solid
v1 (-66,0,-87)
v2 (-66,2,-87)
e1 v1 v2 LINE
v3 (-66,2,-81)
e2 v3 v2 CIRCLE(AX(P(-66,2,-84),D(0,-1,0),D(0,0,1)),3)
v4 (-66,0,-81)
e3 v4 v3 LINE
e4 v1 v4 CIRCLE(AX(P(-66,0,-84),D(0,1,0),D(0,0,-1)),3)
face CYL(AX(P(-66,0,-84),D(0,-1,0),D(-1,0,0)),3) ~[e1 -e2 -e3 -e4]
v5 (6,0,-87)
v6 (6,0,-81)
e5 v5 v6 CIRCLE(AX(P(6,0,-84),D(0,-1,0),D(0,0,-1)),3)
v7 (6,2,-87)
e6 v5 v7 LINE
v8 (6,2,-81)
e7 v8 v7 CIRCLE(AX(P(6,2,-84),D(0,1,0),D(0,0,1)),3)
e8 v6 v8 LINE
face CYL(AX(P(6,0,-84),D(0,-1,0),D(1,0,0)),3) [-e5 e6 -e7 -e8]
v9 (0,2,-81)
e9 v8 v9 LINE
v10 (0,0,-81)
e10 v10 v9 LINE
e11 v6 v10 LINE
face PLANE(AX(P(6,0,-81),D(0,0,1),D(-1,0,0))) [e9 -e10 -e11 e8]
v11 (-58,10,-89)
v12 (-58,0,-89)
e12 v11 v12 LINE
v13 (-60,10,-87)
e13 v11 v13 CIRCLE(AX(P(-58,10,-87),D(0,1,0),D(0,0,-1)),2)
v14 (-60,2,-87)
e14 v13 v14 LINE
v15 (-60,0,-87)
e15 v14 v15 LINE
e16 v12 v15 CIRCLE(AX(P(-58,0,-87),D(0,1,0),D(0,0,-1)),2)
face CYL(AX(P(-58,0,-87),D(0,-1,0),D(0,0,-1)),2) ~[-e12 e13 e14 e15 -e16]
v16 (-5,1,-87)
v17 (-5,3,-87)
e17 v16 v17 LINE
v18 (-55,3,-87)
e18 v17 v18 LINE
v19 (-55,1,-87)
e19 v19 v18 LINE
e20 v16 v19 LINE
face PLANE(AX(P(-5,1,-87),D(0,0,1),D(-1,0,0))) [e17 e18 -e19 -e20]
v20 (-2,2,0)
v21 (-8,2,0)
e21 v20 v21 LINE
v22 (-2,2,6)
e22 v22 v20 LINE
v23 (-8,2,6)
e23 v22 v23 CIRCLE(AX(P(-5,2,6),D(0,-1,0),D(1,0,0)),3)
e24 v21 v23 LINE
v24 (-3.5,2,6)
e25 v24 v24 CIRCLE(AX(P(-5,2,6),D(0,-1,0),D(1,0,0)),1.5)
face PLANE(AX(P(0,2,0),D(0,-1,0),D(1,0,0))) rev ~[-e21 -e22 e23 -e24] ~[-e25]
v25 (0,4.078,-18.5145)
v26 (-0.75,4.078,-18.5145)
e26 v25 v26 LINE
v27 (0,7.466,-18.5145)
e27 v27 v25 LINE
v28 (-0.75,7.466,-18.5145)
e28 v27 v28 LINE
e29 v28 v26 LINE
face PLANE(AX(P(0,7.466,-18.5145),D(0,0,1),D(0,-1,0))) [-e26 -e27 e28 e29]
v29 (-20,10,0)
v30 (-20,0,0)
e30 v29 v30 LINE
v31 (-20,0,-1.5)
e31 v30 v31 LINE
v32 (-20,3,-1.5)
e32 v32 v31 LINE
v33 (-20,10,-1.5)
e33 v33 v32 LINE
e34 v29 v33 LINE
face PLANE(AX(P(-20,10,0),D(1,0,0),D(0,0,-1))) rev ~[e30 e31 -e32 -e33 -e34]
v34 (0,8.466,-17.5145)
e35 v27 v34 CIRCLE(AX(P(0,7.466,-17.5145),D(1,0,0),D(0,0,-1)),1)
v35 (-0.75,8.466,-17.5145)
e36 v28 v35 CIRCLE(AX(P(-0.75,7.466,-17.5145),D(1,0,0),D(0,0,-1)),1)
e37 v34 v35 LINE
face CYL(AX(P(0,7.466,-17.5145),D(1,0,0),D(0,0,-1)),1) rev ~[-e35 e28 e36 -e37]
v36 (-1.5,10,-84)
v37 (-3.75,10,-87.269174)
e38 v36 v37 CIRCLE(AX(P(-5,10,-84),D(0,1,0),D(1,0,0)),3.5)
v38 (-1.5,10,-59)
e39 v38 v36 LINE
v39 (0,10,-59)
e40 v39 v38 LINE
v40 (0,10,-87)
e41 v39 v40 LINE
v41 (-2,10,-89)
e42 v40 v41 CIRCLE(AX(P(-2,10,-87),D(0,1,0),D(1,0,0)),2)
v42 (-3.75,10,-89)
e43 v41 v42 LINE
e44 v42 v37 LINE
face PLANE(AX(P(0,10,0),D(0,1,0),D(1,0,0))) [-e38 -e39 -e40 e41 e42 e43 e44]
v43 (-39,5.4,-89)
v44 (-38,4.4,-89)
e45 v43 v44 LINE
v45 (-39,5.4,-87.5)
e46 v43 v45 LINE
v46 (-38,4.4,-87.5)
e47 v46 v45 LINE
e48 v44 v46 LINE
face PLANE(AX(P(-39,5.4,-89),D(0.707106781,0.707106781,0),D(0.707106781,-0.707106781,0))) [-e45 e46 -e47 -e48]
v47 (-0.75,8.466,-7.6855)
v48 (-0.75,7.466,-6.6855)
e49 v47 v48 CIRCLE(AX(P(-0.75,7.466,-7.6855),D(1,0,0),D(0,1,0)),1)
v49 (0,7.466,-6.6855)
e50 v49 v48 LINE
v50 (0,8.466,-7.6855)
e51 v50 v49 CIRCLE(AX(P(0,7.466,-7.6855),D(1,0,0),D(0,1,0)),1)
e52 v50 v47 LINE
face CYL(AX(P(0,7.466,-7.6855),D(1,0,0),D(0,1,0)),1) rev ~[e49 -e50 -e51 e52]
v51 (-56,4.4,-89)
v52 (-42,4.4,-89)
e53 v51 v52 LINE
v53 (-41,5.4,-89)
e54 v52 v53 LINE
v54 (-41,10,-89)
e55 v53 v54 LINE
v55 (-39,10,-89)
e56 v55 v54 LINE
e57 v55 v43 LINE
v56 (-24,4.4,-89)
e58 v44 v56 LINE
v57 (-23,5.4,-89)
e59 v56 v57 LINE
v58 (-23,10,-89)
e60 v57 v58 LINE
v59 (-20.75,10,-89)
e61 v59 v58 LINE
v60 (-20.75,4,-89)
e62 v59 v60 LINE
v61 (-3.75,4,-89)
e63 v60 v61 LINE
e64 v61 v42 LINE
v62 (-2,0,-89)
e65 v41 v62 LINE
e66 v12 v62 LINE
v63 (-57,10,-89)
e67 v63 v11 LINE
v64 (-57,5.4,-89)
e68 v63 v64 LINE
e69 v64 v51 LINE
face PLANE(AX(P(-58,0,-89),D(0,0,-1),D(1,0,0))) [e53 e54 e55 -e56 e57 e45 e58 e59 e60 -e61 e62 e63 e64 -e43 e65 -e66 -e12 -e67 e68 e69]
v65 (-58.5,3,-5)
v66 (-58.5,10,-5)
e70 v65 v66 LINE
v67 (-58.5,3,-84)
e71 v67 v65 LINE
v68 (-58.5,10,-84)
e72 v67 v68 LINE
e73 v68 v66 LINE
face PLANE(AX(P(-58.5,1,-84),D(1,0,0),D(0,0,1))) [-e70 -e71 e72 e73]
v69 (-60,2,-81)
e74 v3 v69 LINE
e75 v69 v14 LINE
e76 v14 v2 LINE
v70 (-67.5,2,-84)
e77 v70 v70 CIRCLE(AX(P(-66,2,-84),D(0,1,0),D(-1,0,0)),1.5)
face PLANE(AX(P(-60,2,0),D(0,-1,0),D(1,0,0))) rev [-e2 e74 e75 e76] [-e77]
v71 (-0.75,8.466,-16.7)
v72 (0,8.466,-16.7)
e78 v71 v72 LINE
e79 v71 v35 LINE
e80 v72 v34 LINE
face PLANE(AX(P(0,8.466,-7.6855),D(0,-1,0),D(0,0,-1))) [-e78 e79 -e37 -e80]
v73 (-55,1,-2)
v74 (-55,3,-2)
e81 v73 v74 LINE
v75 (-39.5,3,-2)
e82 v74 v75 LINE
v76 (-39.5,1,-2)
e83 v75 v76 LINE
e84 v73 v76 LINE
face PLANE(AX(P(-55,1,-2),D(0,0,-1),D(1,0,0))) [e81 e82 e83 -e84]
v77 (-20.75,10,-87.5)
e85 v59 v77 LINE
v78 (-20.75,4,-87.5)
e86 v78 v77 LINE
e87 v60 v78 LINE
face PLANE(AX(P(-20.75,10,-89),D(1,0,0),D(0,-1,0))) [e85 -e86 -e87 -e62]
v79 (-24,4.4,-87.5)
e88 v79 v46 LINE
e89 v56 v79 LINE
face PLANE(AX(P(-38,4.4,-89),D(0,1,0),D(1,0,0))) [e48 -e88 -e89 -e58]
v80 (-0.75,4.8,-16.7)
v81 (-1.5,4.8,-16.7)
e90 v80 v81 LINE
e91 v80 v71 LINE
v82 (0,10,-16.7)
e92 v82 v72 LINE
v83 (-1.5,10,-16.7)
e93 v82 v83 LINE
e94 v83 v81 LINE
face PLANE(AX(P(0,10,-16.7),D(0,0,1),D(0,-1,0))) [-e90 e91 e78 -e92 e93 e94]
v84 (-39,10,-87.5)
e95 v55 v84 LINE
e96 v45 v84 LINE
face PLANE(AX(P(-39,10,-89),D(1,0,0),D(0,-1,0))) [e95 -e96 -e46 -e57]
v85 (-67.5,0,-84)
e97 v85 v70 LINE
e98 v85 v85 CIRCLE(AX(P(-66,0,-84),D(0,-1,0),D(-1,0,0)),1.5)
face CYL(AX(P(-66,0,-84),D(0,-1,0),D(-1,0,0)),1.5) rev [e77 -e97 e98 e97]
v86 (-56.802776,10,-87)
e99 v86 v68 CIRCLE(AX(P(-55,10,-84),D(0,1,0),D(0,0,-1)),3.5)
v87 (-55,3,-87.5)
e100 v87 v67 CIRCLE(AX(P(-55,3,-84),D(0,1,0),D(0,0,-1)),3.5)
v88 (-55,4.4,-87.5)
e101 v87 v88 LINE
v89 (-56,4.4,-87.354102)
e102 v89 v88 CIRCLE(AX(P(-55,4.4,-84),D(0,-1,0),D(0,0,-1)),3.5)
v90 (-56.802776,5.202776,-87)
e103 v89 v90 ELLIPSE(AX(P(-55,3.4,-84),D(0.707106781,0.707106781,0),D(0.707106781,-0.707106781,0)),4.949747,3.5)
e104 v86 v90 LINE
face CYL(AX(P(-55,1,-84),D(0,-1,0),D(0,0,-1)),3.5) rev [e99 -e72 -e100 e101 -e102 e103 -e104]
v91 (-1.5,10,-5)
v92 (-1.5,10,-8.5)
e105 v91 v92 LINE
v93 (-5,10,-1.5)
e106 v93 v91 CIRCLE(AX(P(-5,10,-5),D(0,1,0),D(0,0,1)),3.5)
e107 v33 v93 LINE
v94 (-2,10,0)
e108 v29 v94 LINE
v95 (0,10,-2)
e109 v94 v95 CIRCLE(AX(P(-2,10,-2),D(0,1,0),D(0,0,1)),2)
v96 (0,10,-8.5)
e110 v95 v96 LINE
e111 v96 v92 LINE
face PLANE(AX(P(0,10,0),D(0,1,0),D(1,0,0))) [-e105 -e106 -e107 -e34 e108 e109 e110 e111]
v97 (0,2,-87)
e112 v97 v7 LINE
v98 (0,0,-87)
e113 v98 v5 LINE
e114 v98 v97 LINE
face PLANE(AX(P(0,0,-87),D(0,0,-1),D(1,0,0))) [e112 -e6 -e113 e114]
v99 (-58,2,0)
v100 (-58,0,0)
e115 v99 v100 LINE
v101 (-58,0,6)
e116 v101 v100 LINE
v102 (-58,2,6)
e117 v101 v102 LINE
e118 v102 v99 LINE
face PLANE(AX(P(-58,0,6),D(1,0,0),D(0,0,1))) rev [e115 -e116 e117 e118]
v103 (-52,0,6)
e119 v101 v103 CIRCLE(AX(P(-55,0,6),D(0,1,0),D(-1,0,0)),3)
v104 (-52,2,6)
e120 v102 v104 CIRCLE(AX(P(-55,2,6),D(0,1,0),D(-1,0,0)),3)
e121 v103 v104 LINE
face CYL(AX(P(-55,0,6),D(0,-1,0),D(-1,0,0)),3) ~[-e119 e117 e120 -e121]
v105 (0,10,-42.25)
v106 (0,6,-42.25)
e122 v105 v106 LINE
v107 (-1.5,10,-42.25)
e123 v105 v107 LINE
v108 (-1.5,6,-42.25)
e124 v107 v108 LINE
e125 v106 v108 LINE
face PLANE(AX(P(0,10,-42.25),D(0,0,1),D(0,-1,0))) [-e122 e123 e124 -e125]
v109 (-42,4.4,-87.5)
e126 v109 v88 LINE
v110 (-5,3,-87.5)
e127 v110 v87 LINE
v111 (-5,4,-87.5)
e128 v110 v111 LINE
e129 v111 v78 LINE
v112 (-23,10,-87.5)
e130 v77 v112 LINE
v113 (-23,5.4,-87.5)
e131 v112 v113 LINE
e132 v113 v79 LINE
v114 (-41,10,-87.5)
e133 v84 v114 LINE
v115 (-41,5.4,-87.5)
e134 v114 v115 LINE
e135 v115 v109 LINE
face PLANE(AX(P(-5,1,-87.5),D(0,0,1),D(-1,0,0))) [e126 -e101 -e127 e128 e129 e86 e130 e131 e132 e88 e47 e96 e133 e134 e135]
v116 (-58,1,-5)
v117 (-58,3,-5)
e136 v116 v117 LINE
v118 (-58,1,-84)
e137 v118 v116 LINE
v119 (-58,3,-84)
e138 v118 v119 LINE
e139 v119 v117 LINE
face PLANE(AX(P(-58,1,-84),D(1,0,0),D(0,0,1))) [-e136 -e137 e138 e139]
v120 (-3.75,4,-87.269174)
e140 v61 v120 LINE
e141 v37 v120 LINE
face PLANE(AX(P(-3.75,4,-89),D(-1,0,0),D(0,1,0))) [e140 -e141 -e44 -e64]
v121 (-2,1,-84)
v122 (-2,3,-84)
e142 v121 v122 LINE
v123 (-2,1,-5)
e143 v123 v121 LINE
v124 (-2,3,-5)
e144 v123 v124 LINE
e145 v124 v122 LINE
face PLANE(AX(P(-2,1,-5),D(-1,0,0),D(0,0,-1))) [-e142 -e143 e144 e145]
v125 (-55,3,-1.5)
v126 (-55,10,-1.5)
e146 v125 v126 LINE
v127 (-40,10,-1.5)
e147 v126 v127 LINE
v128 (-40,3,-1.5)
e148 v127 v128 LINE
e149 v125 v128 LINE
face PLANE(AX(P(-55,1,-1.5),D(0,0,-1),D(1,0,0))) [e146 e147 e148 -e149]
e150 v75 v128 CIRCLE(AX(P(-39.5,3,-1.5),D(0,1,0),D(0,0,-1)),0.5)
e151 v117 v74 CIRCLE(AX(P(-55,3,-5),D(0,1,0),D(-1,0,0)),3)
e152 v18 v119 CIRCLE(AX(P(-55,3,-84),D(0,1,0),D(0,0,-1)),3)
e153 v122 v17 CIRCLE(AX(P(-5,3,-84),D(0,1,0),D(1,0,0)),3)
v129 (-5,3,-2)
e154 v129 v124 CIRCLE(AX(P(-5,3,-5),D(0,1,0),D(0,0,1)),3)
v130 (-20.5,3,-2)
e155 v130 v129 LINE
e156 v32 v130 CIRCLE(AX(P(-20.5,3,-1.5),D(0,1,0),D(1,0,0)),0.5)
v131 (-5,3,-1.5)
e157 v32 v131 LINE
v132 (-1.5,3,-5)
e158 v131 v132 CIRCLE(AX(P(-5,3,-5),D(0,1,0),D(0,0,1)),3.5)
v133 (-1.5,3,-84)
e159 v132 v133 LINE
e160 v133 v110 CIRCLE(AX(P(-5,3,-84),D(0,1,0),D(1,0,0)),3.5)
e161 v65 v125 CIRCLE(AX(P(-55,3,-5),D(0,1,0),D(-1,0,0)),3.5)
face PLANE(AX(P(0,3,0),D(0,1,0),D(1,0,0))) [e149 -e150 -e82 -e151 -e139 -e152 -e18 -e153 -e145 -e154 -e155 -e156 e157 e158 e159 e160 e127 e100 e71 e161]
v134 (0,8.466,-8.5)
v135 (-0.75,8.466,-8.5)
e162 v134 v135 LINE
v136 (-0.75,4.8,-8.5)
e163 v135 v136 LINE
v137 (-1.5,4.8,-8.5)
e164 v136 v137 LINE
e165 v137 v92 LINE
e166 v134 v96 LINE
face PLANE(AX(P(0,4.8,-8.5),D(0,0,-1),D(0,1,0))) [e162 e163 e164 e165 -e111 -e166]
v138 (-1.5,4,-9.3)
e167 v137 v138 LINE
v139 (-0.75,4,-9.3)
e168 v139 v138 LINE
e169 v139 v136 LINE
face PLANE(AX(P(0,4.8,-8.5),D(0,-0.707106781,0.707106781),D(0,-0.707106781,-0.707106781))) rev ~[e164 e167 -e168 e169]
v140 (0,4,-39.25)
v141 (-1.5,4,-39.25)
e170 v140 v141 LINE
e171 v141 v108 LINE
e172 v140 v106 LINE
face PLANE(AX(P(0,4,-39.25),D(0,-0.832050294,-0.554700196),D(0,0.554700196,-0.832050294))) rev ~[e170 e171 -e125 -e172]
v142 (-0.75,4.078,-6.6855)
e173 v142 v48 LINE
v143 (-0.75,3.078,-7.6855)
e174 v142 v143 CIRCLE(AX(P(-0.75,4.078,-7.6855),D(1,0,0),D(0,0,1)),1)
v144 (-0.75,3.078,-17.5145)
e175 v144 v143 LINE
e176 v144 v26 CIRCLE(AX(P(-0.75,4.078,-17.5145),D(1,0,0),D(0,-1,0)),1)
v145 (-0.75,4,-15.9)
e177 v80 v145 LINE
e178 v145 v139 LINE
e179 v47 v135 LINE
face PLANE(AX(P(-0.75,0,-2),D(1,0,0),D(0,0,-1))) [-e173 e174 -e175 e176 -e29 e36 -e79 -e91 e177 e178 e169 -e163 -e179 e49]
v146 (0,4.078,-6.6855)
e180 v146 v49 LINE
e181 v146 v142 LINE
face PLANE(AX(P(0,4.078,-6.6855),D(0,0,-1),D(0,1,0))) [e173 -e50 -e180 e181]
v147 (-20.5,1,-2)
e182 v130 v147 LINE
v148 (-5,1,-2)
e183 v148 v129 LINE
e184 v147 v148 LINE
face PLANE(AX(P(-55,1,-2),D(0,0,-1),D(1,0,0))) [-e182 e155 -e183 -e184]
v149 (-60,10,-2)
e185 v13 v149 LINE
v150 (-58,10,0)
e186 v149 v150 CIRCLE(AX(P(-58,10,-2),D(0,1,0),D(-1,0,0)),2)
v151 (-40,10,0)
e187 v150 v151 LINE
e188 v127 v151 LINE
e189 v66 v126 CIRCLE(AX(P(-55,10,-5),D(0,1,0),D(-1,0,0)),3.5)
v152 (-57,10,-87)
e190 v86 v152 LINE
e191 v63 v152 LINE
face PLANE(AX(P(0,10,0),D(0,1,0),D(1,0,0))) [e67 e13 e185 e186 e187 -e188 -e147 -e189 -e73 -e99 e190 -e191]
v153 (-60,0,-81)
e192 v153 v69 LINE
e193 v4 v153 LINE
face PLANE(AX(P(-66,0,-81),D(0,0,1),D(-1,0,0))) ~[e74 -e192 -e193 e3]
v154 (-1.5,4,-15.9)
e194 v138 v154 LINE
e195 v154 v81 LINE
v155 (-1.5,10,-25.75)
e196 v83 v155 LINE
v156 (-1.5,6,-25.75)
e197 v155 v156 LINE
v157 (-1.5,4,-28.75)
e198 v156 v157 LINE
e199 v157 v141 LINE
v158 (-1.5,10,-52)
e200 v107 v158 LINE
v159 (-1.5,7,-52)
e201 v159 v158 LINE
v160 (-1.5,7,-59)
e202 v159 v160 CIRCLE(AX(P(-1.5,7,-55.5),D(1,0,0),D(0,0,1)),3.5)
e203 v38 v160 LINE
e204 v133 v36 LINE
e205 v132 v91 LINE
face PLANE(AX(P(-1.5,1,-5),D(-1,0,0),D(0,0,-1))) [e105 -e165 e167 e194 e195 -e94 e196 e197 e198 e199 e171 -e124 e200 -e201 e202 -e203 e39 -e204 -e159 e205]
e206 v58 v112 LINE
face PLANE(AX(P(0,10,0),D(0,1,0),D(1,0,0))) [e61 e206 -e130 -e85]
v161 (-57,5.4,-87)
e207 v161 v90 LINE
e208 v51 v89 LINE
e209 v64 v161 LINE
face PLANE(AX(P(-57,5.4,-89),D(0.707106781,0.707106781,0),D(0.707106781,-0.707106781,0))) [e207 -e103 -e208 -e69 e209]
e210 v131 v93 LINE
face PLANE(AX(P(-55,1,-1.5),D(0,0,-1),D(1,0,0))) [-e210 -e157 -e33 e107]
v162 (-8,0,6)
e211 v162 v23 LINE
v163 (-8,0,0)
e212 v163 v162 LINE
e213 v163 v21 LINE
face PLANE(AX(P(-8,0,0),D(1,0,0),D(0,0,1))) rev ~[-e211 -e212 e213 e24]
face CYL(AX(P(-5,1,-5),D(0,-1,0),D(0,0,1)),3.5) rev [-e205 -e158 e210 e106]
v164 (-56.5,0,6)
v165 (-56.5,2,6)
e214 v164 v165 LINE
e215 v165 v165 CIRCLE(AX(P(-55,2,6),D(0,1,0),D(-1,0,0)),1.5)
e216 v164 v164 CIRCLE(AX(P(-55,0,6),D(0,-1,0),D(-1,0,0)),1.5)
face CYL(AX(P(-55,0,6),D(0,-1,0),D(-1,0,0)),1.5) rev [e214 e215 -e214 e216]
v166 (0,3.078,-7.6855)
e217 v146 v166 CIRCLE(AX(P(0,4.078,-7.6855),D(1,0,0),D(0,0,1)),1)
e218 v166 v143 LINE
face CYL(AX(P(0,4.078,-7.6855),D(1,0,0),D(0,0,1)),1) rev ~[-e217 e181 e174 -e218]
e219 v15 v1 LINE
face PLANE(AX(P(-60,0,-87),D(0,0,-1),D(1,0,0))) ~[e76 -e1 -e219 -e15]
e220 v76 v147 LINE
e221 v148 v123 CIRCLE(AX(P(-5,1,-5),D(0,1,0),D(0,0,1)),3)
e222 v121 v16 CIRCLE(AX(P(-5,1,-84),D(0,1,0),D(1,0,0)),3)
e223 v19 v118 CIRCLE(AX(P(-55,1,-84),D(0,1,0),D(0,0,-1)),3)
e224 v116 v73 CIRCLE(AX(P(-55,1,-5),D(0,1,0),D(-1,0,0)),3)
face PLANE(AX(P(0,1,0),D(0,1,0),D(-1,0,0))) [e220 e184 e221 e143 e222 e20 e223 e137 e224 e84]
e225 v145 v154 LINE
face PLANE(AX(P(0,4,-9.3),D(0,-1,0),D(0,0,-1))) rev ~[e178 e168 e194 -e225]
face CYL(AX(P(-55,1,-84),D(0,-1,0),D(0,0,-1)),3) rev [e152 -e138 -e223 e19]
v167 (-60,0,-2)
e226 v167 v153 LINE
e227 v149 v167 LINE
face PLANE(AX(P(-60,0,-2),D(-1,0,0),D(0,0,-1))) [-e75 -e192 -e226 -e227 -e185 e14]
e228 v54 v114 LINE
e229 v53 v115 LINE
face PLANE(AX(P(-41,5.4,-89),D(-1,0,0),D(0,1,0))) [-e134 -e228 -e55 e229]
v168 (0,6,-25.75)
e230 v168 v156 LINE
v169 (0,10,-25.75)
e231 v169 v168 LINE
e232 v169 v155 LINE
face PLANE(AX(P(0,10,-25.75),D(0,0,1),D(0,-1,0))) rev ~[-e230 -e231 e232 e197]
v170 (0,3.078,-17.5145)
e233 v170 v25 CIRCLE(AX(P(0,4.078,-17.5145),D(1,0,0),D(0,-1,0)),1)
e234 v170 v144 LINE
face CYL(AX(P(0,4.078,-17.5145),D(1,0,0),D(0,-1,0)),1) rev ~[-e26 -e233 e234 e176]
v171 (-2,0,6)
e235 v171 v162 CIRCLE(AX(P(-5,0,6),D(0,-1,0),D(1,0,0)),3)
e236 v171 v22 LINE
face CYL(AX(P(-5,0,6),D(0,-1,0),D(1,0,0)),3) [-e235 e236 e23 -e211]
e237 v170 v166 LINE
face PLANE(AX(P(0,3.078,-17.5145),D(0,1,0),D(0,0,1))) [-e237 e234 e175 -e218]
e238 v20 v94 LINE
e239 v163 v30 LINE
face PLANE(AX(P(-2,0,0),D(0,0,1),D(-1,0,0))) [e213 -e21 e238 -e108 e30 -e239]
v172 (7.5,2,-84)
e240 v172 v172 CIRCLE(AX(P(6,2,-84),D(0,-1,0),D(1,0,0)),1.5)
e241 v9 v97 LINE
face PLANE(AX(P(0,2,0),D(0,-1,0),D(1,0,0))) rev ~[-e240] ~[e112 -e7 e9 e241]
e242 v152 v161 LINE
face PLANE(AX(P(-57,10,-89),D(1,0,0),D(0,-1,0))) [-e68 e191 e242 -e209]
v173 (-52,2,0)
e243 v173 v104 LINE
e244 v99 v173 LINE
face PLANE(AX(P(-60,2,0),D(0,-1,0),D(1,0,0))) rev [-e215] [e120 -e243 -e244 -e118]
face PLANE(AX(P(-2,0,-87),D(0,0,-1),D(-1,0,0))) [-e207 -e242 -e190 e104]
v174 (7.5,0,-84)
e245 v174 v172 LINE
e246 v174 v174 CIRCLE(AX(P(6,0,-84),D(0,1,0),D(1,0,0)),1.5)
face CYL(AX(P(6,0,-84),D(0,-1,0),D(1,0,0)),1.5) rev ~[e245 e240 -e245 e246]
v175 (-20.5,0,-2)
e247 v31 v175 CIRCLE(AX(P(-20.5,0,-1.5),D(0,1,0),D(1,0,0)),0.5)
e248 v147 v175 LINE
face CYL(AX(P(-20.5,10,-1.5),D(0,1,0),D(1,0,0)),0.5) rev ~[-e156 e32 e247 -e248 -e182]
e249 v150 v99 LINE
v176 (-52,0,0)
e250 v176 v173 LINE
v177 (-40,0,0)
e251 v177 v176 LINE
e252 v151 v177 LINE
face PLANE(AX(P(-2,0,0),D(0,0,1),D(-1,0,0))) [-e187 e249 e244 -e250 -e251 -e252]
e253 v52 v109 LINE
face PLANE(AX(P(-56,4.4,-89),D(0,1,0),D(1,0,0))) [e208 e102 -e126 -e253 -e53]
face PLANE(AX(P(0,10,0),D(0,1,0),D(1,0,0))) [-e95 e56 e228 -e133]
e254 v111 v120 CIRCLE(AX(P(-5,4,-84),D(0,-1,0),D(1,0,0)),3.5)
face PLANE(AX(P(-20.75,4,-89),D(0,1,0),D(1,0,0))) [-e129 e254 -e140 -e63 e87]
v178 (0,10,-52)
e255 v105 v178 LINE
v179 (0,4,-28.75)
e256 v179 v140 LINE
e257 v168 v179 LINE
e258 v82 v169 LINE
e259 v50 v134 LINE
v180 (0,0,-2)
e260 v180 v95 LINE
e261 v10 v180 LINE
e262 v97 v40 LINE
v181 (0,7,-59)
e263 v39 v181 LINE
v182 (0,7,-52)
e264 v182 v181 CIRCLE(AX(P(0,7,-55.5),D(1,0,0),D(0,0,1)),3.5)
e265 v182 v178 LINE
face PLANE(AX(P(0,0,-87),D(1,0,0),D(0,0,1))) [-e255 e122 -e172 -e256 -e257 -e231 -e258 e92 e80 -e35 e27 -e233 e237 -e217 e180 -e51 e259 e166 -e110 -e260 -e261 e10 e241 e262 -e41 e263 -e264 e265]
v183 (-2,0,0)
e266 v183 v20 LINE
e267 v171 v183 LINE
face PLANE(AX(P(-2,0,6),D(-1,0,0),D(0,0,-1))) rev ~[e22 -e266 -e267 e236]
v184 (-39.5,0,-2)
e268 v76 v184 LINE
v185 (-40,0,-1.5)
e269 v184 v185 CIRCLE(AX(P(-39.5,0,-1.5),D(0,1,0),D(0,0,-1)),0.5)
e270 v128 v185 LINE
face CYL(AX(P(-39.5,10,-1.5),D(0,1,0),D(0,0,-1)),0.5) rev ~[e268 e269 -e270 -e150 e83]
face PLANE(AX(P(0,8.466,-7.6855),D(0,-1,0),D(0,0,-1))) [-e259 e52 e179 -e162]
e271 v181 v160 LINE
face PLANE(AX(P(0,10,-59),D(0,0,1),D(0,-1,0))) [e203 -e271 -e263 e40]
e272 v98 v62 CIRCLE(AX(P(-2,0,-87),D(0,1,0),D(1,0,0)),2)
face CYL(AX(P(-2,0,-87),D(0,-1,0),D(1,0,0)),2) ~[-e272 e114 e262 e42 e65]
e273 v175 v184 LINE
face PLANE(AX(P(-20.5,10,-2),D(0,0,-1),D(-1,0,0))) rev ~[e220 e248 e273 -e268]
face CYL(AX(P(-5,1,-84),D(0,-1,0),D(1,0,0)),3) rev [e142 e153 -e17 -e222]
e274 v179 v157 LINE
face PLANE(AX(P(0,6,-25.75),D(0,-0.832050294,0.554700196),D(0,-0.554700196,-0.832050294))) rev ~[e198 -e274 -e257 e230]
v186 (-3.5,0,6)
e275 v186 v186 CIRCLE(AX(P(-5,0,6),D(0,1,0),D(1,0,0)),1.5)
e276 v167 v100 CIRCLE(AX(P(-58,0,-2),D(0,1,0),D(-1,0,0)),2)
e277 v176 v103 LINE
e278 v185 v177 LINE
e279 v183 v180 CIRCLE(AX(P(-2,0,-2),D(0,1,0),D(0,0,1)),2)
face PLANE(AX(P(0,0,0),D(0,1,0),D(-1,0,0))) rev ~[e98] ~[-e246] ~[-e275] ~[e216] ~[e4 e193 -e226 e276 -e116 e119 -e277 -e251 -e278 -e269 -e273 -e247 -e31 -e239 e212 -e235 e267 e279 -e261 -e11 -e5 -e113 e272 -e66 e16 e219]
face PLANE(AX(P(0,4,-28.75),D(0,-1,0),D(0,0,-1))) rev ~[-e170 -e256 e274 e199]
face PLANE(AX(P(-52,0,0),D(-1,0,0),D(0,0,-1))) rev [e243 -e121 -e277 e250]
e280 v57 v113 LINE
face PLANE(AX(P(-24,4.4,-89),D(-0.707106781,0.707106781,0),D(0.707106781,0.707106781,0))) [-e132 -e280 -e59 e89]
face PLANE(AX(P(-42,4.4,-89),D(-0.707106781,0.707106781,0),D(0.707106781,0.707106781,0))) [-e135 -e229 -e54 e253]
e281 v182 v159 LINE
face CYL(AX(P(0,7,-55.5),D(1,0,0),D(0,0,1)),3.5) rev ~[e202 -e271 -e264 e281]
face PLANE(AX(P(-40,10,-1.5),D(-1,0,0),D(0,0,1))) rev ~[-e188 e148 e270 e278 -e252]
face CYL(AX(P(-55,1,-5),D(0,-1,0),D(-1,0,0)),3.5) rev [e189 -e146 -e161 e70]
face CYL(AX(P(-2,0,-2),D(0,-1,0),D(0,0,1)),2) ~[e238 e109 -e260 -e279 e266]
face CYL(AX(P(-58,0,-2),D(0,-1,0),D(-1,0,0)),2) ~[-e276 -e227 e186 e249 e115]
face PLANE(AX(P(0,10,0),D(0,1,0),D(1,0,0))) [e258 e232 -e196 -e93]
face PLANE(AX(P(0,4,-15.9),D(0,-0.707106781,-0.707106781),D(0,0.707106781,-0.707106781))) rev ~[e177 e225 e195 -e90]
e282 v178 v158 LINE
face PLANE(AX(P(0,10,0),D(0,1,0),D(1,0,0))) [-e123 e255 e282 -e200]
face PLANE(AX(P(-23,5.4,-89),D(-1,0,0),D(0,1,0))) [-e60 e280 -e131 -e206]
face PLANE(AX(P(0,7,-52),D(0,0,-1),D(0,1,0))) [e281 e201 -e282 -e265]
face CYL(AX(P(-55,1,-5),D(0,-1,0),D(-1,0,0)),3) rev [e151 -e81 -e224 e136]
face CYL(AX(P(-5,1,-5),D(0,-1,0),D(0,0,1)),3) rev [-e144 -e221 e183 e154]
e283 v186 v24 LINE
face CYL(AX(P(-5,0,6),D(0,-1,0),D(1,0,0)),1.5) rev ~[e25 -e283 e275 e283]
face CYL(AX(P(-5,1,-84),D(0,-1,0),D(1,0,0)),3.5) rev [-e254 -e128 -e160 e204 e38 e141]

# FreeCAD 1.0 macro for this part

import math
import FreeCAD as App
import Part
import Sketcher

V = App.Vector


def add_polygon(sketch, points):
    """Adds a closed chain of lines whose ends are joined by coincident constraints."""
    first, n = sketch.GeometryCount, len(points)
    for a, b in zip(points, points[1:] + points[:1]):
        sketch.addGeometry(Part.LineSegment(App.Vector(*a, 0), App.Vector(*b, 0)), False)
    for i in range(n):
        sketch.addConstraint(Sketcher.Constraint("Coincident", first + i, 2, first + (i + 1) % n, 1))

doc = App.newDocument("Part")
body = doc.addObject("PartDesign::Body", "Body")

sketch1 = body.newObject("Sketcher::SketchObject", "Sketch")
sketch1.AttachmentSupport = (doc.getObject("XZ_Plane"), [""])
sketch1.MapMode = "FlatFace"
sketch1.addGeometry([
    Part.LineSegment(V(-58, 0, 0), V(-2, 0, 0)),
    Part.ArcOfCircle(Part.Circle(V(-2, -2, 0), V(0, 0, 1), 2), math.radians(0), math.radians(90)),
    Part.LineSegment(V(0, -2, 0), V(0, -87, 0)),
    Part.ArcOfCircle(Part.Circle(V(-2, -87, 0), V(0, 0, 1), 2), math.radians(-90), math.radians(0)),
    Part.LineSegment(V(-2, -89, 0), V(-58, -89, 0)),
    Part.ArcOfCircle(Part.Circle(V(-58, -87, 0), V(0, 0, 1), 2), math.radians(180), math.radians(270)),
    Part.LineSegment(V(-60, -87, 0), V(-60, -2, 0)),
    Part.ArcOfCircle(Part.Circle(V(-58, -2, 0), V(0, 0, 1), 2), math.radians(90), math.radians(180)),
], False)
sketch1.addConstraint([
    Sketcher.Constraint("Tangent", 0, 2, 1, 2),
    Sketcher.Constraint("Tangent", 1, 1, 2, 1),
    Sketcher.Constraint("Tangent", 2, 2, 3, 2),
    Sketcher.Constraint("Tangent", 3, 1, 4, 1),
    Sketcher.Constraint("Tangent", 4, 2, 5, 2),
    Sketcher.Constraint("Tangent", 5, 1, 6, 1),
    Sketcher.Constraint("Tangent", 6, 2, 7, 2),
    Sketcher.Constraint("Tangent", 7, 1, 0, 1),
    Sketcher.Constraint("Horizontal", 0),
    Sketcher.Constraint("Vertical", 2),
    Sketcher.Constraint("Horizontal", 4),
    Sketcher.Constraint("Vertical", 6),
    Sketcher.Constraint("Equal", 1, 3),
    Sketcher.Constraint("Equal", 3, 5),
    Sketcher.Constraint("Equal", 5, 7),
    Sketcher.Constraint("PointOnObject", 0, 2, -1),
    Sketcher.Constraint("PointOnObject", 1, 1, -2),
    Sketcher.Constraint("Radius", 1, 2.0),
    Sketcher.Constraint("DistanceY", 3, 1, -1, 1, 89.0),
    Sketcher.Constraint("DistanceX", 5, 1, -1, 1, 60.0),
])
pad1 = body.newObject("PartDesign::Pad", "Pad")
pad1.Profile = sketch1
pad1.Length = 1
pad1.Reversed = True

sketch2 = body.newObject("Sketcher::SketchObject", "Sketch001")
sketch2.AttachmentSupport = (doc.getObject("XZ_Plane"), [""])
sketch2.MapMode = "FlatFace"
sketch2.AttachmentOffset = App.Placement(V(0, 0, -1), App.Rotation())
sketch2.addGeometry([
    Part.ArcOfCircle(Part.Circle(V(-58, -87, 0), V(0, 0, 1), 2), math.radians(180), math.radians(270)),
    Part.LineSegment(V(-60, -87, 0), V(-60, -2, 0)),
    Part.ArcOfCircle(Part.Circle(V(-58, -2, 0), V(0, 0, 1), 2), math.radians(90), math.radians(180)),
    Part.LineSegment(V(-58, 0, 0), V(-2, 0, 0)),
    Part.ArcOfCircle(Part.Circle(V(-2, -2, 0), V(0, 0, 1), 2), math.radians(0), math.radians(90)),
    Part.LineSegment(V(0, -2, 0), V(0, -87, 0)),
    Part.ArcOfCircle(Part.Circle(V(-2, -87, 0), V(0, 0, 1), 2), math.radians(-90), math.radians(0)),
    Part.LineSegment(V(-2, -89, 0), V(-58, -89, 0)),
    Part.LineSegment(V(-5, -1.5, 0), V(-55, -1.5, 0)),
    Part.ArcOfCircle(Part.Circle(V(-55, -5, 0), V(0, 0, 1), 3.5), math.radians(90), math.radians(180)),
    Part.LineSegment(V(-58.5, -5, 0), V(-58.5, -84, 0)),
    Part.ArcOfCircle(Part.Circle(V(-55, -84, 0), V(0, 0, 1), 3.5), math.radians(180), math.radians(270)),
    Part.LineSegment(V(-55, -87.5, 0), V(-5, -87.5, 0)),
    Part.ArcOfCircle(Part.Circle(V(-5, -84, 0), V(0, 0, 1), 3.5), math.radians(-90), math.radians(0)),
    Part.LineSegment(V(-1.5, -84, 0), V(-1.5, -5, 0)),
    Part.ArcOfCircle(Part.Circle(V(-5, -5, 0), V(0, 0, 1), 3.5), math.radians(0), math.radians(90)),
], False)
sketch2.addConstraint([
    Sketcher.Constraint("Tangent", 0, 1, 1, 1),
    Sketcher.Constraint("Tangent", 1, 2, 2, 2),
    Sketcher.Constraint("Tangent", 2, 1, 3, 1),
    Sketcher.Constraint("Tangent", 3, 2, 4, 2),
    Sketcher.Constraint("Tangent", 4, 1, 5, 1),
    Sketcher.Constraint("Tangent", 5, 2, 6, 2),
    Sketcher.Constraint("Tangent", 6, 1, 7, 1),
    Sketcher.Constraint("Tangent", 7, 2, 0, 2),
    Sketcher.Constraint("Tangent", 8, 2, 9, 1),
    Sketcher.Constraint("Tangent", 9, 2, 10, 1),
    Sketcher.Constraint("Tangent", 10, 2, 11, 1),
    Sketcher.Constraint("Tangent", 11, 2, 12, 1),
    Sketcher.Constraint("Tangent", 12, 2, 13, 1),
    Sketcher.Constraint("Tangent", 13, 2, 14, 1),
    Sketcher.Constraint("Tangent", 14, 2, 15, 1),
    Sketcher.Constraint("Tangent", 15, 2, 8, 1),
    Sketcher.Constraint("Vertical", 1),
    Sketcher.Constraint("Horizontal", 3),
    Sketcher.Constraint("Vertical", 5),
    Sketcher.Constraint("Horizontal", 7),
    Sketcher.Constraint("Horizontal", 8),
    Sketcher.Constraint("Vertical", 10),
    Sketcher.Constraint("Horizontal", 12),
    Sketcher.Constraint("Vertical", 14),
    Sketcher.Constraint("Equal", 0, 2),
    Sketcher.Constraint("Equal", 2, 4),
    Sketcher.Constraint("Equal", 4, 6),
    Sketcher.Constraint("Equal", 9, 11),
    Sketcher.Constraint("Equal", 11, 13),
    Sketcher.Constraint("Equal", 13, 15),
    Sketcher.Constraint("PointOnObject", 2, 1, -1),
    Sketcher.Constraint("PointOnObject", 4, 1, -2),
    Sketcher.Constraint("Radius", 0, 2.0),
    Sketcher.Constraint("Radius", 9, 3.5),
    Sketcher.Constraint("DistanceY", 8, 2, -1, 1, 1.5),
    Sketcher.Constraint("DistanceX", 13, 2, -1, 1, 1.5),
    Sketcher.Constraint("DistanceX", 1, 2, 9, 2, 1.5),
    Sketcher.Constraint("DistanceY", 7, 2, 11, 2, 1.5),
    Sketcher.Constraint("DistanceX", 3, 1, 3, 2, 56.0),
    Sketcher.Constraint("DistanceY", 1, 1, 1, 2, 85.0),
])
pad2 = body.newObject("PartDesign::Pad", "Pad001")
pad2.Profile = sketch2
pad2.Length = 9
pad2.Reversed = True

sketch3 = body.newObject("Sketcher::SketchObject", "Sketch002")
sketch3.AttachmentSupport = (doc.getObject("XZ_Plane"), [""])
sketch3.MapMode = "FlatFace"
sketch3.AttachmentOffset = App.Placement(V(0, 0, -1), App.Rotation())
sketch3.addGeometry([
    Part.ArcOfCircle(Part.Circle(V(-55, -5, 0), V(0, 0, 1), 3.5), math.radians(90), math.radians(180)),
    Part.LineSegment(V(-55, -1.5, 0), V(-5, -1.5, 0)),
    Part.ArcOfCircle(Part.Circle(V(-5, -5, 0), V(0, 0, 1), 3.5), math.radians(0), math.radians(90)),
    Part.LineSegment(V(-1.5, -5, 0), V(-1.5, -84, 0)),
    Part.ArcOfCircle(Part.Circle(V(-5, -84, 0), V(0, 0, 1), 3.5), math.radians(-90), math.radians(0)),
    Part.LineSegment(V(-5, -87.5, 0), V(-55, -87.5, 0)),
    Part.ArcOfCircle(Part.Circle(V(-55, -84, 0), V(0, 0, 1), 3.5), math.radians(180), math.radians(270)),
    Part.LineSegment(V(-58.5, -84, 0), V(-58.5, -5, 0)),
    Part.LineSegment(V(-5, -2, 0), V(-55, -2, 0)),
    Part.ArcOfCircle(Part.Circle(V(-55, -5, 0), V(0, 0, 1), 3), math.radians(90), math.radians(180)),
    Part.LineSegment(V(-58, -5, 0), V(-58, -84, 0)),
    Part.ArcOfCircle(Part.Circle(V(-55, -84, 0), V(0, 0, 1), 3), math.radians(180), math.radians(270)),
    Part.LineSegment(V(-55, -87, 0), V(-5, -87, 0)),
    Part.ArcOfCircle(Part.Circle(V(-5, -84, 0), V(0, 0, 1), 3), math.radians(-90), math.radians(0)),
    Part.LineSegment(V(-2, -84, 0), V(-2, -5, 0)),
    Part.ArcOfCircle(Part.Circle(V(-5, -5, 0), V(0, 0, 1), 3), math.radians(0), math.radians(90)),
], False)
sketch3.addConstraint([
    Sketcher.Constraint("Tangent", 0, 1, 1, 1),
    Sketcher.Constraint("Tangent", 1, 2, 2, 2),
    Sketcher.Constraint("Tangent", 2, 1, 3, 1),
    Sketcher.Constraint("Tangent", 3, 2, 4, 2),
    Sketcher.Constraint("Tangent", 4, 1, 5, 1),
    Sketcher.Constraint("Tangent", 5, 2, 6, 2),
    Sketcher.Constraint("Tangent", 6, 1, 7, 1),
    Sketcher.Constraint("Tangent", 7, 2, 0, 2),
    Sketcher.Constraint("Tangent", 8, 2, 9, 1),
    Sketcher.Constraint("Tangent", 9, 2, 10, 1),
    Sketcher.Constraint("Tangent", 10, 2, 11, 1),
    Sketcher.Constraint("Tangent", 11, 2, 12, 1),
    Sketcher.Constraint("Tangent", 12, 2, 13, 1),
    Sketcher.Constraint("Tangent", 13, 2, 14, 1),
    Sketcher.Constraint("Tangent", 14, 2, 15, 1),
    Sketcher.Constraint("Tangent", 15, 2, 8, 1),
    Sketcher.Constraint("Horizontal", 1),
    Sketcher.Constraint("Vertical", 3),
    Sketcher.Constraint("Horizontal", 5),
    Sketcher.Constraint("Vertical", 7),
    Sketcher.Constraint("Horizontal", 8),
    Sketcher.Constraint("Vertical", 10),
    Sketcher.Constraint("Horizontal", 12),
    Sketcher.Constraint("Vertical", 14),
    Sketcher.Constraint("Coincident", 9, 3, 0, 3),
    Sketcher.Constraint("Coincident", 11, 3, 6, 3),
    Sketcher.Constraint("Coincident", 13, 3, 4, 3),
    Sketcher.Constraint("Equal", 0, 2),
    Sketcher.Constraint("Equal", 2, 4),
    Sketcher.Constraint("Equal", 4, 6),
    Sketcher.Constraint("Equal", 13, 15),
    Sketcher.Constraint("Radius", 9, 3.0),
    Sketcher.Constraint("Radius", 0, 3.5),
    Sketcher.Constraint("DistanceX", 1, 1, 1, 2, 50.0),
    Sketcher.Constraint("DistanceY", 3, 2, 3, 1, 79.0),
    Sketcher.Constraint("DistanceX", 0, 3, -1, 1, 55.0),
    Sketcher.Constraint("DistanceY", 0, 3, -1, 1, 5.0),
])
pad3 = body.newObject("PartDesign::Pad", "Pad002")
pad3.Profile = sketch3
pad3.Length = 2
pad3.Reversed = True

sketch4 = body.newObject("Sketcher::SketchObject", "Sketch003")
sketch4.AttachmentSupport = (doc.getObject("XZ_Plane"), [""])
sketch4.MapMode = "FlatFace"
sketch4.AttachmentOffset = App.Placement(V(0, 0, -10), App.Rotation())
sketch4.addGeometry([
    Part.LineSegment(V(-40, -1.5, 0), V(-40, 0, 0)),
    Part.LineSegment(V(-40, 0, 0), V(-20, 0, 0)),
    Part.LineSegment(V(-20, 0, 0), V(-20, -1.5, 0)),
    Part.ArcOfCircle(Part.Circle(V(-20.5, -1.5, 0), V(0, 0, 1), 0.5), math.radians(-90), math.radians(0)),
    Part.LineSegment(V(-20.5, -2, 0), V(-39.5, -2, 0)),
    Part.ArcOfCircle(Part.Circle(V(-39.5, -1.5, 0), V(0, 0, 1), 0.5), math.radians(180), math.radians(270)),
], False)
sketch4.addConstraint([
    Sketcher.Constraint("Coincident", 0, 2, 1, 1),
    Sketcher.Constraint("Coincident", 1, 2, 2, 1),
    Sketcher.Constraint("Tangent", 2, 2, 3, 2),
    Sketcher.Constraint("Tangent", 3, 1, 4, 1),
    Sketcher.Constraint("Tangent", 4, 2, 5, 2),
    Sketcher.Constraint("Tangent", 5, 1, 0, 1),
    Sketcher.Constraint("Vertical", 0),
    Sketcher.Constraint("Horizontal", 1),
    Sketcher.Constraint("Vertical", 2),
    Sketcher.Constraint("Horizontal", 4),
    Sketcher.Constraint("Equal", 3, 5),
    Sketcher.Constraint("PointOnObject", 0, 2, -1),
    Sketcher.Constraint("Radius", 3, 0.5),
    Sketcher.Constraint("DistanceX", 1, 1, 1, 2, 20.0),
    Sketcher.Constraint("DistanceX", 1, 2, -1, 1, 20.0),
    Sketcher.Constraint("DistanceY", 3, 1, -1, 1, 2.0),
])
pocket1 = body.newObject("PartDesign::Pocket", "Pocket")
pocket1.Profile = sketch4
pocket1.Length = 10
pocket1.Reversed = True

sketch5 = body.newObject("Sketcher::SketchObject", "Sketch004")
sketch5.AttachmentSupport = (doc.getObject("YZ_Plane"), [""])
sketch5.MapMode = "FlatFace"
add_polygon(sketch5, [(10, -42.2), (10, -25.8), (6, -25.8), (4, -28.8), (4, -39.2), (6, -42.2)])
sketch5.addConstraint([
    Sketcher.Constraint("Vertical", 0),
    Sketcher.Constraint("Horizontal", 1),
    Sketcher.Constraint("Vertical", 3),
    Sketcher.Constraint("Horizontal", 5),
    Sketcher.Constraint("Vertical", 1, 2, 4, 2),
    Sketcher.Constraint("Equal", 2, 4),
    Sketcher.Constraint("DistanceX", 1, 2, 1, 1, 4.0),
    Sketcher.Constraint("DistanceY", 0, 1, 0, 2, 16.5),
    Sketcher.Constraint("DistanceY", 3, 2, 3, 1, 10.5),
    Sketcher.Constraint("DistanceX", -1, 1, 1, 2, 6.0),
    Sketcher.Constraint("DistanceX", -1, 1, 2, 2, 4.0),
    Sketcher.Constraint("DistanceY", 0, 2, -1, 1, 25.75),
])
pocket2 = body.newObject("PartDesign::Pocket", "Pocket001")
pocket2.Profile = sketch5
pocket2.Length = 1.5

sketch6 = body.newObject("Sketcher::SketchObject", "Sketch005")
sketch6.AttachmentSupport = (doc.getObject("YZ_Plane"), [""])
sketch6.MapMode = "FlatFace"
sketch6.addGeometry([
    Part.LineSegment(V(10, -59, 0), V(10, -52, 0)),
    Part.LineSegment(V(10, -52, 0), V(7, -52, 0)),
    Part.ArcOfCircle(Part.Circle(V(7, -55.5, 0), V(0, 0, 1), 3.5), math.radians(90), math.radians(270)),
    Part.LineSegment(V(7, -59, 0), V(10, -59, 0)),
], False)
sketch6.addConstraint([
    Sketcher.Constraint("Coincident", 0, 2, 1, 1),
    Sketcher.Constraint("Tangent", 1, 2, 2, 1),
    Sketcher.Constraint("Tangent", 2, 2, 3, 1),
    Sketcher.Constraint("Coincident", 3, 2, 0, 1),
    Sketcher.Constraint("Vertical", 0),
    Sketcher.Constraint("Horizontal", 1),
    Sketcher.Constraint("Horizontal", 3),
    Sketcher.Constraint("Radius", 2, 3.5),
    Sketcher.Constraint("DistanceX", 1, 2, 1, 1, 3.0),
    Sketcher.Constraint("DistanceX", -1, 1, 2, 3, 7.0),
    Sketcher.Constraint("DistanceY", 0, 2, -1, 1, 52.0),
])
pocket3 = body.newObject("PartDesign::Pocket", "Pocket002")
pocket3.Profile = sketch6
pocket3.Length = 1.5

sketch7 = body.newObject("Sketcher::SketchObject", "Sketch006")
sketch7.AttachmentSupport = (doc.getObject("YZ_Plane"), [""])
sketch7.MapMode = "FlatFace"
add_polygon(sketch7, [(10, -16.7), (10, -8.5), (4.8, -8.5), (4, -9.3), (4, -15.9), (4.8, -16.7)])
sketch7.addConstraint([
    Sketcher.Constraint("Vertical", 0),
    Sketcher.Constraint("Horizontal", 1),
    Sketcher.Constraint("Vertical", 3),
    Sketcher.Constraint("Horizontal", 5),
    Sketcher.Constraint("Perpendicular", 2, 4),
    Sketcher.Constraint("Vertical", 1, 2, 4, 2),
    Sketcher.Constraint("Equal", 2, 4),
    Sketcher.Constraint("DistanceX", 1, 2, 1, 1, 5.2),
    Sketcher.Constraint("DistanceY", 0, 1, 0, 2, 8.2),
    Sketcher.Constraint("DistanceY", 3, 2, 3, 1, 6.6),
    Sketcher.Constraint("DistanceX", -1, 1, 0, 2, 10.0),
    Sketcher.Constraint("DistanceY", 0, 2, -1, 1, 8.5),
])
pocket4 = body.newObject("PartDesign::Pocket", "Pocket003")
pocket4.Profile = sketch7
pocket4.Length = 1.5

sketch8 = body.newObject("Sketcher::SketchObject", "Sketch007")
sketch8.AttachmentSupport = (doc.getObject("YZ_Plane"), [""])
sketch8.MapMode = "FlatFace"
sketch8.addGeometry([
    Part.LineSegment(V(8.5, -17.5, 0), V(8.5, -7.7, 0)),
    Part.ArcOfCircle(Part.Circle(V(7.5, -7.7, 0), V(0, 0, 1), 1), math.radians(0), math.radians(90)),
    Part.LineSegment(V(7.5, -6.7, 0), V(4.1, -6.7, 0)),
    Part.ArcOfCircle(Part.Circle(V(4.1, -7.7, 0), V(0, 0, 1), 1), math.radians(90), math.radians(180)),
    Part.LineSegment(V(3.1, -7.7, 0), V(3.1, -17.5, 0)),
    Part.ArcOfCircle(Part.Circle(V(4.1, -17.5, 0), V(0, 0, 1), 1), math.radians(180), math.radians(270)),
    Part.LineSegment(V(4.1, -18.5, 0), V(7.5, -18.5, 0)),
    Part.ArcOfCircle(Part.Circle(V(7.5, -17.5, 0), V(0, 0, 1), 1), math.radians(-90), math.radians(0)),
], False)
sketch8.addConstraint([
    Sketcher.Constraint("Tangent", 0, 2, 1, 1),
    Sketcher.Constraint("Tangent", 1, 2, 2, 1),
    Sketcher.Constraint("Tangent", 2, 2, 3, 1),
    Sketcher.Constraint("Tangent", 3, 2, 4, 1),
    Sketcher.Constraint("Tangent", 4, 2, 5, 1),
    Sketcher.Constraint("Tangent", 5, 2, 6, 1),
    Sketcher.Constraint("Tangent", 6, 2, 7, 1),
    Sketcher.Constraint("Tangent", 7, 2, 0, 1),
    Sketcher.Constraint("Vertical", 0),
    Sketcher.Constraint("Horizontal", 2),
    Sketcher.Constraint("Vertical", 4),
    Sketcher.Constraint("Horizontal", 6),
    Sketcher.Constraint("Equal", 1, 3),
    Sketcher.Constraint("Equal", 3, 5),
    Sketcher.Constraint("Equal", 5, 7),
    Sketcher.Constraint("Radius", 1, 1.0),
    Sketcher.Constraint("DistanceX", 3, 2, 0, 2, 5.388),
    Sketcher.Constraint("DistanceY", 0, 1, 0, 2, 9.829),
    Sketcher.Constraint("DistanceX", -1, 1, 1, 3, 7.466),
    Sketcher.Constraint("DistanceY", 1, 3, -1, 1, 7.6855),
])
pocket5 = body.newObject("PartDesign::Pocket", "Pocket004")
pocket5.Profile = sketch8
pocket5.Length = 0.75

sketch9 = body.newObject("Sketcher::SketchObject", "Sketch008")
sketch9.AttachmentSupport = (doc.getObject("XY_Plane"), [""])
sketch9.MapMode = "FlatFace"
sketch9.AttachmentOffset = App.Placement(V(0, 0, -89), App.Rotation())
add_polygon(sketch9, [(-21, 10), (-4, 10), (-4, 4), (-21, 4)])
sketch9.addConstraint([
    Sketcher.Constraint("Horizontal", 0),
    Sketcher.Constraint("Vertical", 1),
    Sketcher.Constraint("Horizontal", 2),
    Sketcher.Constraint("Vertical", 3),
    Sketcher.Constraint("DistanceX", 0, 1, 0, 2, 17.0),
    Sketcher.Constraint("DistanceY", 1, 2, 1, 1, 6.0),
    Sketcher.Constraint("DistanceX", 0, 2, -1, 1, 3.75),
    Sketcher.Constraint("DistanceY", -1, 1, 0, 2, 10.0),
])
pocket6 = body.newObject("PartDesign::Pocket", "Pocket005")
pocket6.Profile = sketch9
pocket6.Length = 2
pocket6.Reversed = True

sketch10 = body.newObject("Sketcher::SketchObject", "Sketch009")
sketch10.AttachmentSupport = (doc.getObject("XY_Plane"), [""])
sketch10.MapMode = "FlatFace"
sketch10.AttachmentOffset = App.Placement(V(0, 0, -89), App.Rotation())
add_polygon(sketch10, [(-39, 10), (-23, 10), (-23, 5.4), (-24, 4.4), (-38, 4.4), (-39, 5.4)])
add_polygon(sketch10, [(-57, 5.4), (-57, 10), (-41, 10), (-41, 5.4), (-42, 4.4), (-56, 4.4)])
sketch10.addConstraint([
    Sketcher.Constraint("Horizontal", 0),
    Sketcher.Constraint("Vertical", 1),
    Sketcher.Constraint("Horizontal", 3),
    Sketcher.Constraint("Vertical", 5),
    Sketcher.Constraint("Vertical", 6),
    Sketcher.Constraint("Horizontal", 7),
    Sketcher.Constraint("Vertical", 8),
    Sketcher.Constraint("Horizontal", 10),
    Sketcher.Constraint("Perpendicular", 2, 4),
    Sketcher.Constraint("Perpendicular", 4, 9),
    Sketcher.Constraint("Perpendicular", 9, 11),
    Sketcher.Constraint("Horizontal", 1, 2, 4, 2),
    Sketcher.Constraint("Horizontal", 5, 2, 6, 2),
    Sketcher.Constraint("Horizontal", 4, 2, 8, 2),
    Sketcher.Constraint("Horizontal", 3, 2, 9, 2),
    Sketcher.Constraint("Horizontal", 8, 2, 11, 2),
    Sketcher.Constraint("Equal", 0, 7),
    Sketcher.Constraint("Equal", 2, 4),
    Sketcher.Constraint("DistanceX", 0, 1, 0, 2, 16.0),
    Sketcher.Constraint("DistanceX", 3, 2, 3, 1, 14.0),
    Sketcher.Constraint("DistanceY", 1, 2, 1, 1, 4.6),
    Sketcher.Constraint("DistanceY", -1, 1, 0, 2, 10.0),
    Sketcher.Constraint("DistanceX", 6, 2, 5, 2, 18.0),
    Sketcher.Constraint("DistanceX", 0, 2, -1, 1, 23.0),
])
pocket7 = body.newObject("PartDesign::Pocket", "Pocket006")
pocket7.Profile = sketch10
pocket7.Length = 2
pocket7.Reversed = True

sketch11 = body.newObject("Sketcher::SketchObject", "Sketch010")
sketch11.AttachmentSupport = (doc.getObject("XZ_Plane"), [""])
sketch11.MapMode = "FlatFace"
sketch11.addGeometry([
    Part.LineSegment(V(-8, 0, 0), V(-2, 0, 0)),
    Part.LineSegment(V(-2, 0, 0), V(-2, 6, 0)),
    Part.ArcOfCircle(Part.Circle(V(-5, 6, 0), V(0, 0, 1), 3), math.radians(0), math.radians(180)),
    Part.LineSegment(V(-8, 6, 0), V(-8, 0, 0)),
    Part.Circle(V(-5, 6, 0), V(0, 0, 1), 1.5),
    Part.LineSegment(V(0, -81, 0), V(0, -87, 0)),
    Part.LineSegment(V(0, -87, 0), V(6, -87, 0)),
    Part.ArcOfCircle(Part.Circle(V(6, -84, 0), V(0, 0, 1), 3), math.radians(-90), math.radians(90)),
    Part.LineSegment(V(6, -81, 0), V(0, -81, 0)),
    Part.Circle(V(6, -84, 0), V(0, 0, 1), 1.5),
], False)
sketch11.addConstraint([
    Sketcher.Constraint("Coincident", 0, 2, 1, 1),
    Sketcher.Constraint("Tangent", 1, 2, 2, 1),
    Sketcher.Constraint("Tangent", 2, 2, 3, 1),
    Sketcher.Constraint("Coincident", 3, 2, 0, 1),
    Sketcher.Constraint("Coincident", 5, 2, 6, 1),
    Sketcher.Constraint("Tangent", 6, 2, 7, 1),
    Sketcher.Constraint("Tangent", 7, 2, 8, 1),
    Sketcher.Constraint("Coincident", 8, 2, 5, 1),
    Sketcher.Constraint("Horizontal", 0),
    Sketcher.Constraint("Vertical", 1),
    Sketcher.Constraint("Vertical", 3),
    Sketcher.Constraint("Vertical", 5),
    Sketcher.Constraint("Horizontal", 6),
    Sketcher.Constraint("Horizontal", 8),
    Sketcher.Constraint("Coincident", 4, 3, 2, 3),
    Sketcher.Constraint("Coincident", 9, 3, 7, 3),
    Sketcher.Constraint("Equal", 2, 7),
    Sketcher.Constraint("Equal", 4, 9),
    Sketcher.Constraint("PointOnObject", 0, 2, -1),
    Sketcher.Constraint("PointOnObject", 5, 2, -2),
    Sketcher.Constraint("Equal", 0, 6),
    Sketcher.Constraint("Equal", 8, 1),
    Sketcher.Constraint("Diameter", 4, 3.0),
    Sketcher.Constraint("Radius", 2, 3.0),
    Sketcher.Constraint("DistanceX", 2, 3, -1, 1, 5.0),
    Sketcher.Constraint("DistanceY", 7, 3, -1, 1, 84.0),
])
pad4 = body.newObject("PartDesign::Pad", "Pad003")
pad4.Profile = sketch11
pad4.Length = 2
pad4.Reversed = True
doc.recompute()

datumplane = body.newObject("PartDesign::Plane", "DatumPlane")
datumplane.AttachmentSupport = (doc.getObject("YZ_Plane"), [""])
datumplane.MapMode = "FlatFace"
datumplane.AttachmentOffset = App.Placement(V(0, 0, -30), App.Rotation())
mirrored = body.newObject("PartDesign::Mirrored", "Mirrored")
mirrored.Originals = [pad4]
mirrored.MirrorPlane = (datumplane, [""])
body.Tip = mirrored

doc.recompute()
